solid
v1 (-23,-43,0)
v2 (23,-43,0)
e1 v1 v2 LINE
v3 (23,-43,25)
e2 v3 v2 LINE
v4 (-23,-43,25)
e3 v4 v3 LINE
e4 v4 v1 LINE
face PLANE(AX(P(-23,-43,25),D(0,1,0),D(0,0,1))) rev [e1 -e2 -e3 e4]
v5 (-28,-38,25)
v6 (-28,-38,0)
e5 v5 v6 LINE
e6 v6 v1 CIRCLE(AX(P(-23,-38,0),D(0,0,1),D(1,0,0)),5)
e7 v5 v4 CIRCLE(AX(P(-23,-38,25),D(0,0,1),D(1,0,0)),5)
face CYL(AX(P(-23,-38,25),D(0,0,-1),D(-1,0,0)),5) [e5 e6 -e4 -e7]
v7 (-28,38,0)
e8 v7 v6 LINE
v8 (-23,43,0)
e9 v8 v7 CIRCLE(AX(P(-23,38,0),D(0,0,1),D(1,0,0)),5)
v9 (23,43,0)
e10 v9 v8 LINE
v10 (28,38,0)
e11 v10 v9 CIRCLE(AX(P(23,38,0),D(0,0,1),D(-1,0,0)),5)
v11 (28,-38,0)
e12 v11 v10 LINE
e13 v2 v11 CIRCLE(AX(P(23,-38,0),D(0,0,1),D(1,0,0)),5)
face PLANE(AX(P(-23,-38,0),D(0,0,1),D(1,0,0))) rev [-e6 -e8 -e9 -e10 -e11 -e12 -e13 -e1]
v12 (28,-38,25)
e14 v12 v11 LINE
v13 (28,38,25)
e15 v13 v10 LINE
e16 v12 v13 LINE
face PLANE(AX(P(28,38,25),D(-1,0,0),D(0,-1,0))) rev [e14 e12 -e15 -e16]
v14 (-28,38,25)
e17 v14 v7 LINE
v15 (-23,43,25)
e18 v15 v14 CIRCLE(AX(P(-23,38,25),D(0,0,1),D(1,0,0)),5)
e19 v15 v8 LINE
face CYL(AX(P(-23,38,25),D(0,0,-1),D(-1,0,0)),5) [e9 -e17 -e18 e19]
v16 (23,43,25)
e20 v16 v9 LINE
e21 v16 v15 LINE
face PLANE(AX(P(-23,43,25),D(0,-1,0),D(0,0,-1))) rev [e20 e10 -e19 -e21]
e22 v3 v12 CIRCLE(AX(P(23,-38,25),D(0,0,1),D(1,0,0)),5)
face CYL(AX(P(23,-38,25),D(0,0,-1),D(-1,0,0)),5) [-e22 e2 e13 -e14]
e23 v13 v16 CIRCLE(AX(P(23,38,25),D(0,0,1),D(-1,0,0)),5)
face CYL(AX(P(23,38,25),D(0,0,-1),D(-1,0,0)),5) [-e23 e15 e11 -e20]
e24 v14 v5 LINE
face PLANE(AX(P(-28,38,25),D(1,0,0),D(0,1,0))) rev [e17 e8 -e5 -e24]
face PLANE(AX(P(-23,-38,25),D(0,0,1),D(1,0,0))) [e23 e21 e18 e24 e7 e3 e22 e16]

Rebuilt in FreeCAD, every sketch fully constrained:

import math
import FreeCAD as App
import Part
import Sketcher
from FreeCAD import Vector
Q = App.Units.Quantity

doc = App.newDocument("Part")
params = doc.addObject("Spreadsheet::Sheet", "Params")
for row, (alias, value) in enumerate([
    ("sketch1_radius", "5 mm"),
    ("sketch1_width", "46 mm"),
    ("sketch1_height", "76 mm"),
    ("pad1_length", "25 mm"),
], start=1):
    params.set(f"A{row}", alias)
    params.set(f"B{row}", "=" + value)
    params.setAlias(f"B{row}", alias)

body = doc.addObject("PartDesign::Body", "Body")

sketch1 = doc.addObject("Sketcher::SketchObject", "Sketch")
body.addObject(sketch1)
sketch1.AttachmentSupport = (doc.XY_Plane, [""])
sketch1.MapMode = "FlatFace"
sketch1.addGeometry([
    Part.LineSegment(Vector(23, 43, 0), Vector(-23, 43, 0)),
    Part.ArcOfCircle(Part.Circle(Vector(-23, 38, 0), Vector(0, 0, 1), 5), math.radians(90), math.radians(180)),
    Part.LineSegment(Vector(-28, 38, 0), Vector(-28, -38, 0)),
    Part.ArcOfCircle(Part.Circle(Vector(-23, -38, 0), Vector(0, 0, 1), 5), math.radians(180), math.radians(270)),
    Part.LineSegment(Vector(-23, -43, 0), Vector(23, -43, 0)),
    Part.ArcOfCircle(Part.Circle(Vector(23, -38, 0), Vector(0, 0, 1), 5), math.radians(-90), math.radians(0)),
    Part.LineSegment(Vector(28, -38, 0), Vector(28, 38, 0)),
    Part.ArcOfCircle(Part.Circle(Vector(23, 38, 0), Vector(0, 0, 1), 5), math.radians(0), math.radians(90)),
], False)
sketch1.addConstraint([
    Sketcher.Constraint("Tangent", 0, 2, 1, 1),
    Sketcher.Constraint("Tangent", 1, 2, 2, 1),
    Sketcher.Constraint("Tangent", 2, 2, 3, 1),
    Sketcher.Constraint("Tangent", 3, 2, 4, 1),
    Sketcher.Constraint("Tangent", 4, 2, 5, 1),
    Sketcher.Constraint("Tangent", 5, 2, 6, 1),
    Sketcher.Constraint("Tangent", 6, 2, 7, 1),
    Sketcher.Constraint("Tangent", 7, 2, 0, 1),
    Sketcher.Constraint("Horizontal", 0),
    Sketcher.Constraint("Vertical", 2),
    Sketcher.Constraint("Horizontal", 4),
    Sketcher.Constraint("Vertical", 6),
    Sketcher.Constraint("Equal", 1, 3),
    Sketcher.Constraint("Equal", 3, 5),
    Sketcher.Constraint("Equal", 5, 7),
    Sketcher.Constraint("Symmetric", 1, 3, 5, 3, -1, 1),
    Sketcher.Constraint("Radius", 1, Q("5 mm")),
    Sketcher.Constraint("DistanceX", 0, 2, 0, 1, Q("46 mm")),
    Sketcher.Constraint("DistanceY", 2, 2, 2, 1, Q("76 mm")),
])
sketch1.setExpression("Constraints[16]", "Params.sketch1_radius")
sketch1.setExpression("Constraints[17]", "Params.sketch1_width")
sketch1.setExpression("Constraints[18]", "Params.sketch1_height")
pad1 = doc.addObject("PartDesign::Pad", "Pad")
body.addObject(pad1)
pad1.Profile = sketch1
pad1.setExpression("Length", "Params.pad1_length")

doc.recompute()
